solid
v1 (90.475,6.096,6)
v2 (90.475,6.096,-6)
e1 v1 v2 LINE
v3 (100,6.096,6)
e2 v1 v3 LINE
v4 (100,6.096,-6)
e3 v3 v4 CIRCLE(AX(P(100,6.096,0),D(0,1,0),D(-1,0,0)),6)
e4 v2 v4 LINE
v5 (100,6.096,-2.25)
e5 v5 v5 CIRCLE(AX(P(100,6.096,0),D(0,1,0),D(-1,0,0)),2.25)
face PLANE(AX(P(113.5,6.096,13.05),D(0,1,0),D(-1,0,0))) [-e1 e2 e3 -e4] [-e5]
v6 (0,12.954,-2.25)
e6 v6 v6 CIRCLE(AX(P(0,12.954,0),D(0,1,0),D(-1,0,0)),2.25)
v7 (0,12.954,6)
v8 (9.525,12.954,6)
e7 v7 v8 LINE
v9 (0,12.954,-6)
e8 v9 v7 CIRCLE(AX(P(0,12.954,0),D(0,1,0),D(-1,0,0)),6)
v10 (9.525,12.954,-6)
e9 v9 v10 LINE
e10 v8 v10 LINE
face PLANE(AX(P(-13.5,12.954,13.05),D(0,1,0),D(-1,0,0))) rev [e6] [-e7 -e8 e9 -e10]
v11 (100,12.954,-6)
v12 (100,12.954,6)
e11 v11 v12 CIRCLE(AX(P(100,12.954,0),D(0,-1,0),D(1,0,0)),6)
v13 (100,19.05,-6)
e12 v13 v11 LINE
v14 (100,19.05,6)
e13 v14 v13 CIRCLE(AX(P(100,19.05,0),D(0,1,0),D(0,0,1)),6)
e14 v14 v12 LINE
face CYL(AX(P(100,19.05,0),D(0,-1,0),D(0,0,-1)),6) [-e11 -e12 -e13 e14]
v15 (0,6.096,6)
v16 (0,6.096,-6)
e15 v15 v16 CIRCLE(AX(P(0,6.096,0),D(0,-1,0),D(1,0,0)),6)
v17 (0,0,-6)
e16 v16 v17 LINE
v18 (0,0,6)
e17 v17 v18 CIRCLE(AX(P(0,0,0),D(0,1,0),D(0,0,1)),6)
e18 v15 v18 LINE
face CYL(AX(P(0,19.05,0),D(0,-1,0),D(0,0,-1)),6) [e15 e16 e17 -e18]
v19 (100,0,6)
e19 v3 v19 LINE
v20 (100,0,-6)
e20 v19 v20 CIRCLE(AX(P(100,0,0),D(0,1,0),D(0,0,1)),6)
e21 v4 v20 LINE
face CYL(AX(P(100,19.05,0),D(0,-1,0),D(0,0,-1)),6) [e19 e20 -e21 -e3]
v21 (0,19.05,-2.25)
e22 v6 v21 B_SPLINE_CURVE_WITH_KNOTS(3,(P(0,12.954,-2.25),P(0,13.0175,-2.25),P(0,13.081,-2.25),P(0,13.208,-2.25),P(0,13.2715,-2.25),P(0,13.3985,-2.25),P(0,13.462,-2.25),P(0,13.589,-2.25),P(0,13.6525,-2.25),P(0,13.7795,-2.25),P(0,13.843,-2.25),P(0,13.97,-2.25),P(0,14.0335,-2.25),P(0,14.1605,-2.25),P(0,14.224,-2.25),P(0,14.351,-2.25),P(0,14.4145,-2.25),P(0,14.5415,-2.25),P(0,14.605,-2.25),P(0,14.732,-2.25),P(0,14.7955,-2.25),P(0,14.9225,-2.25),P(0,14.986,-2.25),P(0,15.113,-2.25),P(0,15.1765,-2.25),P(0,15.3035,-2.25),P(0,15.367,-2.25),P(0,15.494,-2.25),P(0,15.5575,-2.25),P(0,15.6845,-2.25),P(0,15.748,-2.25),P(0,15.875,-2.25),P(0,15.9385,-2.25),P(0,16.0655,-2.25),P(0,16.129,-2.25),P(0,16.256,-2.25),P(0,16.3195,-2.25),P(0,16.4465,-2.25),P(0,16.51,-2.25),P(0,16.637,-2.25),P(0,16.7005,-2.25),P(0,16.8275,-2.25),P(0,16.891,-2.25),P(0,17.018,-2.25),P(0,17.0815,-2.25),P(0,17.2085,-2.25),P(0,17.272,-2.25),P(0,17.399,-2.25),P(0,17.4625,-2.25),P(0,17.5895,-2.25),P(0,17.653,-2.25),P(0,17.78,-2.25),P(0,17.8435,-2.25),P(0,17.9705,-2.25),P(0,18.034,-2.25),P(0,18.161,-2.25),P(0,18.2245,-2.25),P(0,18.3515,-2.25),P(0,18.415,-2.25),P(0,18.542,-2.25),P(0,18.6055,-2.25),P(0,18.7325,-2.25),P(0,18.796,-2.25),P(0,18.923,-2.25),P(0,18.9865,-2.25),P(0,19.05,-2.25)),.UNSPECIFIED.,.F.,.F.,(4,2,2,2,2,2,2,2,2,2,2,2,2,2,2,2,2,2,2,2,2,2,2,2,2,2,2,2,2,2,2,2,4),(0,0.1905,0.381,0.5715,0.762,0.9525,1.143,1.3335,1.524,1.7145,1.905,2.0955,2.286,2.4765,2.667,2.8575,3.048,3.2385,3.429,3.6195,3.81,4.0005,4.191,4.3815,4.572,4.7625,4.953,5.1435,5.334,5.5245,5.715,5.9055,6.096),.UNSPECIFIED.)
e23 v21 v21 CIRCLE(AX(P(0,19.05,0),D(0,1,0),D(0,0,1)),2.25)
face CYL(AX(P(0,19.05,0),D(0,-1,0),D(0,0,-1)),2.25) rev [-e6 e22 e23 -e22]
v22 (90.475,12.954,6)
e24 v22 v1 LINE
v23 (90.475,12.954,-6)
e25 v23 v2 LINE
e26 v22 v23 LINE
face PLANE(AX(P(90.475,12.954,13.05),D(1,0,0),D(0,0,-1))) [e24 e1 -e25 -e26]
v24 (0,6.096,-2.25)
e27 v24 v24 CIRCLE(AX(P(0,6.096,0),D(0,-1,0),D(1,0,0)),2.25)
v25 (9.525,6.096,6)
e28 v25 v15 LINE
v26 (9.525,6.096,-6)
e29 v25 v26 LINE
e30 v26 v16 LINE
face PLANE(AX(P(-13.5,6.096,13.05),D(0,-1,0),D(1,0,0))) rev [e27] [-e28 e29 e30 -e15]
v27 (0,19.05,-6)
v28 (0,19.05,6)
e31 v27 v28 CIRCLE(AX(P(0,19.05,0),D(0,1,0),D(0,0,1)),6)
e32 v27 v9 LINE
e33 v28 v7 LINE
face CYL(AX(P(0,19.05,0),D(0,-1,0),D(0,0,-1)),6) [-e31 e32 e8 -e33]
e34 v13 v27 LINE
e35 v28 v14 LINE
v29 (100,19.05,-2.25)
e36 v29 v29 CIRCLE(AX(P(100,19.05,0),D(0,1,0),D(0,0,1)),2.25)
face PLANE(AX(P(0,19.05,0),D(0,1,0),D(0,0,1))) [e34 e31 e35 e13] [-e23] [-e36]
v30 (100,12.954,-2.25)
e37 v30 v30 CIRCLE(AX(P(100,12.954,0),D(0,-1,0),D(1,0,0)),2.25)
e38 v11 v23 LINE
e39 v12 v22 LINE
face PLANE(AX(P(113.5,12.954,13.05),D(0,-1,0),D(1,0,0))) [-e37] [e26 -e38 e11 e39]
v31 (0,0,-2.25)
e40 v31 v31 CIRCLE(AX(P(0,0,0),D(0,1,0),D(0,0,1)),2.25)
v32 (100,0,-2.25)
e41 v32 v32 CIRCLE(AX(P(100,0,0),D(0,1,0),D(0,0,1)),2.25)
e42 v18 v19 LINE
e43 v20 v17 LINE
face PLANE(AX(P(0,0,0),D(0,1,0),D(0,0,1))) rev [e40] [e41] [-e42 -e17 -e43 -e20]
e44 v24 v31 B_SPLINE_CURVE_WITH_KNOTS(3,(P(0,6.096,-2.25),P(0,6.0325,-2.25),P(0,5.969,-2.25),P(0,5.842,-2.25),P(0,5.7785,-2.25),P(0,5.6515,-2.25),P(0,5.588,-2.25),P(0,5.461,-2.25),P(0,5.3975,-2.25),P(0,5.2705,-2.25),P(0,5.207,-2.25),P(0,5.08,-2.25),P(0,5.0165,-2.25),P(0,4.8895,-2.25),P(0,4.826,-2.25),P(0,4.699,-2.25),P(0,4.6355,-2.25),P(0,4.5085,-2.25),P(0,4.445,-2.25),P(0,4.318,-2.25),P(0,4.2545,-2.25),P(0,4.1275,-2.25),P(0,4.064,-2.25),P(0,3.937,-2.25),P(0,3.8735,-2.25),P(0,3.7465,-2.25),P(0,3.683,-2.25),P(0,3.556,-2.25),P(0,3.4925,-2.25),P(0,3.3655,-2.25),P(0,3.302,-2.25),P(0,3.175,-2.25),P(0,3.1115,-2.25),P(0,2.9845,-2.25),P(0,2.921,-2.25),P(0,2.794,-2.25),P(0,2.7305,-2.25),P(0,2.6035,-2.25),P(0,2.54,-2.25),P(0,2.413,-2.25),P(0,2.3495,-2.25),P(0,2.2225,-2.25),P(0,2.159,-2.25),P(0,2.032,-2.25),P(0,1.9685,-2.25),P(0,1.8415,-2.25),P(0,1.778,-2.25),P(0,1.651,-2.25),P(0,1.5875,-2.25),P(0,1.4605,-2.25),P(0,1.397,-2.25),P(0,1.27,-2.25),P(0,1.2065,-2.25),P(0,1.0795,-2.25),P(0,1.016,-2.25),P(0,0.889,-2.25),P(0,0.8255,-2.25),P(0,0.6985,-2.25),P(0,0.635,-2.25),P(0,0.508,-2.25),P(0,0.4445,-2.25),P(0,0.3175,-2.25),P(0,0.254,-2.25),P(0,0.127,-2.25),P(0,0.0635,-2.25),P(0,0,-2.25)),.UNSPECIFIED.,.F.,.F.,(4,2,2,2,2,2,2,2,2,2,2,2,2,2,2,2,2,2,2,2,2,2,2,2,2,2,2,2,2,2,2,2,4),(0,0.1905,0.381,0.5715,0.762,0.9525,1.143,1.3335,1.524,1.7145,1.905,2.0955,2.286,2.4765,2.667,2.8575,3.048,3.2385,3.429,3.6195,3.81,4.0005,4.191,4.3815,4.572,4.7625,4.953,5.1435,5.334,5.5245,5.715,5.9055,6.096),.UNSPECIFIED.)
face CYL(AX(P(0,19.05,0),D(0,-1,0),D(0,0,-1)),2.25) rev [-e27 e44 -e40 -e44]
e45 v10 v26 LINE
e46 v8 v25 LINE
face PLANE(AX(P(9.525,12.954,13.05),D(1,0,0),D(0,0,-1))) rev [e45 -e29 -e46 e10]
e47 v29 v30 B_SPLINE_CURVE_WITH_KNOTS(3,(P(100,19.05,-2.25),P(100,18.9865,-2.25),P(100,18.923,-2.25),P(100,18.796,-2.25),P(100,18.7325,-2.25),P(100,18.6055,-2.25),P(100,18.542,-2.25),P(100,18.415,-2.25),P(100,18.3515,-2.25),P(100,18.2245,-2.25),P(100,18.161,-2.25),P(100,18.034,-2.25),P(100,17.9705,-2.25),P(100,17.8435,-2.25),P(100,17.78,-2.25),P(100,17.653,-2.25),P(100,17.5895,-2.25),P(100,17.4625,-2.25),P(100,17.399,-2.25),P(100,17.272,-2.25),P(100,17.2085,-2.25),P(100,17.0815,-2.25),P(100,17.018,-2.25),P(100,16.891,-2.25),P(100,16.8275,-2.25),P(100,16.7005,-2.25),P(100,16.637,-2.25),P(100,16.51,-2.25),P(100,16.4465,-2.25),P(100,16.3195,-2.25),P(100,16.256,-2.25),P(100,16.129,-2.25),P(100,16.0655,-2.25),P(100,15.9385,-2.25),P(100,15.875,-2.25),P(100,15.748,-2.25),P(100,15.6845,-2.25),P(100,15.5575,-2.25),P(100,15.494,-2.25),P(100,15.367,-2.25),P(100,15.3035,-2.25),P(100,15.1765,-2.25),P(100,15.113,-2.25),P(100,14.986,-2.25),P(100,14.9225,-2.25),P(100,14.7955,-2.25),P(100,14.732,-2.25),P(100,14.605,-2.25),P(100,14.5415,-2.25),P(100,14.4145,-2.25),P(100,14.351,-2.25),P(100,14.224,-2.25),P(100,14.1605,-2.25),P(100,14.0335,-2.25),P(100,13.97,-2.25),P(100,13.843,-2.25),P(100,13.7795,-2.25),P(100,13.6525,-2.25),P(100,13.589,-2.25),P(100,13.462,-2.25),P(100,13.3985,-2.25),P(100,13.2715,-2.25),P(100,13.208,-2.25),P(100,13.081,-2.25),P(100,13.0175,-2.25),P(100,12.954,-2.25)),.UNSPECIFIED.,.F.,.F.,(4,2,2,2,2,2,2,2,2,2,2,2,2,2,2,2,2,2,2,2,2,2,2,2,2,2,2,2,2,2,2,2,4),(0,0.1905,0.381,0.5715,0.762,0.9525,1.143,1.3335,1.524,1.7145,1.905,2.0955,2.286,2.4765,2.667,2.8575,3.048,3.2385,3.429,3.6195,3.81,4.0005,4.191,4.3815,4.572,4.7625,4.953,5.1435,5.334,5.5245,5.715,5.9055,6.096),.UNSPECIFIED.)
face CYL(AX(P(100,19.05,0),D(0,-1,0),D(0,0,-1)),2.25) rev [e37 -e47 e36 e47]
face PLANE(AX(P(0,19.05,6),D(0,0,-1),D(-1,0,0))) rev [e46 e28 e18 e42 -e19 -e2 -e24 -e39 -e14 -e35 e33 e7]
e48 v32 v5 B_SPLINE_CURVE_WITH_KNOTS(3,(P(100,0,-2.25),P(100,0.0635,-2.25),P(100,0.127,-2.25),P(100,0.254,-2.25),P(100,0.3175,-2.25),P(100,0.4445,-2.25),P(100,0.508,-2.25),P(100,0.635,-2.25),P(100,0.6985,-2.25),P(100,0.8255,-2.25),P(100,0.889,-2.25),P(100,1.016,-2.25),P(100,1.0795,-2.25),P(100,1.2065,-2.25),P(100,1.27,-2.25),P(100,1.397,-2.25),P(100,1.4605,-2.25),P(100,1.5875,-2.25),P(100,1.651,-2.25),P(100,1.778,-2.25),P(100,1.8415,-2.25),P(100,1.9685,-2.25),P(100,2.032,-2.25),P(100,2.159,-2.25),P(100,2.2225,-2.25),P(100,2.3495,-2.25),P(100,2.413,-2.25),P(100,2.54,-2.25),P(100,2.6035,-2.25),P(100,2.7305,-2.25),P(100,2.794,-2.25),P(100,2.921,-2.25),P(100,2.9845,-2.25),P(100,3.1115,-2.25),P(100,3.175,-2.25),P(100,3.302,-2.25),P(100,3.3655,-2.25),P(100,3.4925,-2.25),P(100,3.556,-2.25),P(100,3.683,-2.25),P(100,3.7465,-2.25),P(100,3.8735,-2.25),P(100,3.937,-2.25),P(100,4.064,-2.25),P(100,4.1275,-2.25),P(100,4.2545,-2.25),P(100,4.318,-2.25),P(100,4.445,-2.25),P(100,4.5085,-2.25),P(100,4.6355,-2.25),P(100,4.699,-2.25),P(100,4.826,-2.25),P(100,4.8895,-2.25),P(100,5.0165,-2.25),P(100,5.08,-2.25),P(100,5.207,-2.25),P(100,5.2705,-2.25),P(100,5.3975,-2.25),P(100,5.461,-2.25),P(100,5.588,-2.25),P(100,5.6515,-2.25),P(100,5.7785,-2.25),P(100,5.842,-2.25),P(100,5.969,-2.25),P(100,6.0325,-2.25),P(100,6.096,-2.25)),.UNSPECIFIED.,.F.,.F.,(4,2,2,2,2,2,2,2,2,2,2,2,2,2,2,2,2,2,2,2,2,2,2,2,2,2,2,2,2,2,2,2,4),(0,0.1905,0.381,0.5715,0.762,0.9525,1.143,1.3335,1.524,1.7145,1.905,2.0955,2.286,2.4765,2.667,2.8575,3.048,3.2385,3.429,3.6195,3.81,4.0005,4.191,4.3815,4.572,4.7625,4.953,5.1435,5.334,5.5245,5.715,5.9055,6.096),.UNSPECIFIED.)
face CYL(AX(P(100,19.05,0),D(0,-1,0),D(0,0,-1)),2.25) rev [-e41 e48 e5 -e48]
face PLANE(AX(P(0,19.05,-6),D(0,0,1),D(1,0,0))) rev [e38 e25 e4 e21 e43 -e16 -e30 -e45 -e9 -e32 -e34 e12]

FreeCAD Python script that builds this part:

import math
import FreeCAD as App
import Part
import Sketcher
Q = App.Units.Quantity


def add_polygon(sketch, points):
    """Adds a closed chain of lines whose ends are joined by coincident constraints."""
    first, n = sketch.GeometryCount, len(points)
    for a, b in zip(points, points[1:] + points[:1]):
        sketch.addGeometry(Part.LineSegment(App.Vector(*a, 0), App.Vector(*b, 0)), False)
    for i in range(n):
        sketch.addConstraint(Sketcher.Constraint("Coincident", first + i, 2, first + (i + 1) % n, 1))

doc = App.newDocument("Part")
body = doc.addObject("PartDesign::Body", "Body")

# Sketch on XZ plane
sketch1 = body.newObject("Sketcher::SketchObject", "Sketch")
sketch1.AttachmentSupport = (doc.getObject("XZ_Plane"), [""])
sketch1.MapMode = "FlatFace"
sketch1.addGeometry([
    Part.LineSegment(App.Vector(100, -6, 0), App.Vector(0, -6, 0)),  # 0
    Part.ArcOfCircle(Part.Circle(App.Vector(0, 0, 0), App.Vector(0, 0, 1), 6), math.radians(90), math.radians(270)),  # 1
    Part.LineSegment(App.Vector(0, 6, 0), App.Vector(100, 6, 0)),  # 2
    Part.ArcOfCircle(Part.Circle(App.Vector(100, 0, 0), App.Vector(0, 0, 1), 6), math.radians(-90), math.radians(90)),  # 3
    Part.Circle(App.Vector(100, 0, 0), App.Vector(0, 0, 1), 2.2),  # 4
    Part.Circle(App.Vector(0, 0, 0), App.Vector(0, 0, 1), 2.2),  # 5
], False)
sketch1.addConstraint([
    Sketcher.Constraint("Tangent", 0, 2, 1, 2),
    Sketcher.Constraint("Tangent", 1, 1, 2, 1),
    Sketcher.Constraint("Tangent", 2, 2, 3, 2),
    Sketcher.Constraint("Tangent", 3, 1, 0, 1),
    Sketcher.Constraint("Horizontal", 0),
    Sketcher.Constraint("Horizontal", 2),
    Sketcher.Constraint("Coincident", 1, 3, -1, 1),
    Sketcher.Constraint("Coincident", 5, 3, -1, 1),
    Sketcher.Constraint("Coincident", 4, 3, 3, 3),
    Sketcher.Constraint("Equal", 4, 5),
    Sketcher.Constraint("Radius", 1, Q("6 mm")),
    Sketcher.Constraint("Diameter", 4, Q("4.5 mm")),
    Sketcher.Constraint("DistanceX", 0, 2, 0, 1, Q("100 mm")),
])
pad1 = body.newObject("PartDesign::Pad", "Pad")
pad1.Profile = sketch1
pad1.Length = 19.05
pad1.Reversed = True

# Sketch on XY plane
sketch2 = body.newObject("Sketcher::SketchObject", "Sketch001")
sketch2.AttachmentSupport = (doc.getObject("XY_Plane"), [""])
sketch2.MapMode = "FlatFace"
sketch2.AttachmentOffset = App.Placement(App.Vector(0, 0, -6), App.Rotation())
add_polygon(sketch2, [(10, 13), (10, 6), (-14, 6), (-14, 13)])  # lines 0-3
sketch2.addConstraint([
    Sketcher.Constraint("Vertical", 0),
    Sketcher.Constraint("Horizontal", 1),
    Sketcher.Constraint("Vertical", 2),
    Sketcher.Constraint("Horizontal", 3),
    Sketcher.Constraint("DistanceX", 1, 2, -1, 1, Q("13.5 mm")),
    Sketcher.Constraint("DistanceX", 1, 2, 1, 1, Q("23.025 mm")),
    Sketcher.Constraint("DistanceY", 0, 2, 0, 1, Q("6.858 mm")),
    Sketcher.Constraint("DistanceY", -1, 1, 0, 2, Q("6.096 mm")),
])
pocket1 = body.newObject("PartDesign::Pocket", "Pocket")
pocket1.Profile = sketch2
pocket1.Length = 19.05
pocket1.Reversed = True
doc.recompute()

datumplane = body.newObject("PartDesign::Plane", "DatumPlane")
datumplane.AttachmentSupport = (doc.getObject("YZ_Plane"), [""])
datumplane.MapMode = "FlatFace"
datumplane.AttachmentOffset = App.Placement(App.Vector(0, 0, 50), App.Rotation())
mirrored = body.newObject("PartDesign::Mirrored", "Mirrored")
mirrored.Originals = [pocket1]
mirrored.MirrorPlane = (datumplane, [""])
body.Tip = mirrored

doc.recompute()
